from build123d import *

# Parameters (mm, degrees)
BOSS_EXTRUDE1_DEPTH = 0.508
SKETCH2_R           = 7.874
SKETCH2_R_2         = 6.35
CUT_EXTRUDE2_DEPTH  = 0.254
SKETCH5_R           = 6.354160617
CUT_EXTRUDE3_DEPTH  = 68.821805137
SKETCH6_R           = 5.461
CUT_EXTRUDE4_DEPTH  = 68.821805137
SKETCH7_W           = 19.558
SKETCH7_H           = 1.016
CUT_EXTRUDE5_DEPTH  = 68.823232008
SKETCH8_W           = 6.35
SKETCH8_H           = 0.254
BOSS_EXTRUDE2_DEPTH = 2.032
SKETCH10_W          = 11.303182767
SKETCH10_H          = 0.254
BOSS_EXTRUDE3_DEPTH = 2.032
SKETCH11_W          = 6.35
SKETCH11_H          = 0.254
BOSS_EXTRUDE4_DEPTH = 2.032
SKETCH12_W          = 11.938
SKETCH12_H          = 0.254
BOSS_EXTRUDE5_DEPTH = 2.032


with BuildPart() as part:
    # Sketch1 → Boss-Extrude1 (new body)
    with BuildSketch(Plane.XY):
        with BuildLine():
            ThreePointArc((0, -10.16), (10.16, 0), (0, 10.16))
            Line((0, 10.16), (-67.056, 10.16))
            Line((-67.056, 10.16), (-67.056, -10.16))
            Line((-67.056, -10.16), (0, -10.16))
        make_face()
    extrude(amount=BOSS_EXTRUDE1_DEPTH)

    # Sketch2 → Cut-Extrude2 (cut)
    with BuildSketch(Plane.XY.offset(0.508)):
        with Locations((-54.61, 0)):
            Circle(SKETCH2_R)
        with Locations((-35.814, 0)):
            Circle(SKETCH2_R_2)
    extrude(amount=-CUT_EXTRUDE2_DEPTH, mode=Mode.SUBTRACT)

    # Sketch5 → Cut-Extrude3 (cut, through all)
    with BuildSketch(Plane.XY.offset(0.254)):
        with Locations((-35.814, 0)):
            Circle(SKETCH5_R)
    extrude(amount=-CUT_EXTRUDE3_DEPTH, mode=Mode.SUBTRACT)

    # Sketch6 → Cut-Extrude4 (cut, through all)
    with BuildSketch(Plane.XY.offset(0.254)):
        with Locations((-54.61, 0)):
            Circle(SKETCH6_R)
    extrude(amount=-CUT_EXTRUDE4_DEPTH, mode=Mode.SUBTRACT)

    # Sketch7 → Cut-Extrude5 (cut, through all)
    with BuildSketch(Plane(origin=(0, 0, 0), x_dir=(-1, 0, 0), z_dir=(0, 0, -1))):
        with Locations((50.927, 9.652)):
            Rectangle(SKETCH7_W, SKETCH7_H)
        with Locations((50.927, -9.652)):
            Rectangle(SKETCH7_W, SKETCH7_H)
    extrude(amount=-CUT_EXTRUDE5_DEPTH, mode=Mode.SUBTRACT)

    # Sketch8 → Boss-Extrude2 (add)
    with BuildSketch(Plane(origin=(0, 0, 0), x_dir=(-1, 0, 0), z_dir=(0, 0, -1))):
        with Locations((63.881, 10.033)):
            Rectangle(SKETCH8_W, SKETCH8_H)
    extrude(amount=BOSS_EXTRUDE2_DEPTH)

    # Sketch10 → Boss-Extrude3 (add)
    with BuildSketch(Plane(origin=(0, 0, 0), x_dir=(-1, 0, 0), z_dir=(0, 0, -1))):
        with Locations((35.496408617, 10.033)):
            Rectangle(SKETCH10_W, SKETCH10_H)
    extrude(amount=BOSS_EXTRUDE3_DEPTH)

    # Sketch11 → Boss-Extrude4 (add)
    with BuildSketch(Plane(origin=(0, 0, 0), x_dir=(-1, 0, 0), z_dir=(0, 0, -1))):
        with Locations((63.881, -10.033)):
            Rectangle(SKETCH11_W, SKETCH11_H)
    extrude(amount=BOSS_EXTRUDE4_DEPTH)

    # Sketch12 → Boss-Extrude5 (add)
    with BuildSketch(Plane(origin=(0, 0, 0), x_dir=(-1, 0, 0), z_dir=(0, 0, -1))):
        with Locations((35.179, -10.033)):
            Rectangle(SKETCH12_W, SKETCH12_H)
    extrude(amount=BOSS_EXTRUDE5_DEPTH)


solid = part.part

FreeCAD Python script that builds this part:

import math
import FreeCAD as App
import Part
import Sketcher
from FreeCAD import Vector
Q = App.Units.Quantity


def add_polygon(sketch, points):
    """Adds a closed chain of lines whose ends are joined by coincident constraints."""
    first, n = sketch.GeometryCount, len(points)
    for a, b in zip(points, points[1:] + points[:1]):
        sketch.addGeometry(Part.LineSegment(App.Vector(*a, 0), App.Vector(*b, 0)), False)
    for i in range(n):
        sketch.addConstraint(Sketcher.Constraint("Coincident", first + i, 2, first + (i + 1) % n, 1))

doc = App.newDocument("Part")
params = doc.addObject("Spreadsheet::Sheet", "Params")
for row, (alias, value) in enumerate([
    ("sketch1_radius", "0.4 in"),
    ("sketch1_width", "2.64 in"),
    ("pad1_length", "0.02 in"),
    ("sketch2_diameter", "0.5 in"),
    ("sketch2_diameter2", "0.62 in"),
    ("pocket1_length", "0.01 in"),
    ("sketch4_diameter", "0.43 in"),
    ("sketch5_width", "0.77 in"),
    ("sketch5_height", "0.04 in"),
    ("sketch6_width", "0.25 in"),
    ("sketch6_height", "0.01 in"),
    ("pad2_length", "0.08 in"),
    ("sketch7_height", "0.01 in"),
    ("pad3_length", "0.08 in"),
    ("sketch8_width", "0.25 in"),
    ("sketch8_height", "0.01 in"),
    ("pad4_length", "0.08 in"),
    ("sketch9_width", "0.47 in"),
    ("sketch9_height", "0.01 in"),
    ("pad5_length", "0.08 in"),
], start=1):
    params.set(f"A{row}", alias)
    params.set(f"B{row}", "=" + value)
    params.setAlias(f"B{row}", alias)

body = doc.addObject("PartDesign::Body", "Body")

# Sketch on XY plane
sketch1 = doc.addObject("Sketcher::SketchObject", "Sketch")
body.addObject(sketch1)
sketch1.AttachmentSupport = (doc.XY_Plane, [""])
sketch1.MapMode = "FlatFace"
sketch1.addGeometry([
    Part.ArcOfCircle(Part.Circle(Vector(0, 0, 0), Vector(0, 0, 1), 10), math.radians(-90), math.radians(90)),
    Part.LineSegment(Vector(0, 10, 0), Vector(-67, 10, 0)),
    Part.LineSegment(Vector(-67, 10, 0), Vector(-67, -10, 0)),
    Part.LineSegment(Vector(-67, -10, 0), Vector(0, -10, 0)),
], False)
sketch1.addConstraint([
    Sketcher.Constraint("Tangent", 0, 2, 1, 1),
    Sketcher.Constraint("Coincident", 1, 2, 2, 1),
    Sketcher.Constraint("Coincident", 2, 2, 3, 1),
    Sketcher.Constraint("Tangent", 3, 2, 0, 1),
    Sketcher.Constraint("Horizontal", 1),
    Sketcher.Constraint("Vertical", 2),
    Sketcher.Constraint("Horizontal", 3),
    Sketcher.Constraint("Coincident", 0, 3, -1, 1),
    Sketcher.Constraint("Radius", 0, Q("0.4 in")),
    Sketcher.Constraint("DistanceX", 1, 2, 1, 1, Q("2.64 in")),
])
sketch1.setExpression("Constraints[8]", "Params.sketch1_radius")
sketch1.setExpression("Constraints[9]", "Params.sketch1_width")
pad1 = doc.addObject("PartDesign::Pad", "Pad")
body.addObject(pad1)
pad1.Profile = sketch1
pad1.setExpression("Length", "Params.pad1_length")

# Sketch on XY plane
sketch2 = doc.addObject("Sketcher::SketchObject", "Sketch001")
body.addObject(sketch2)
sketch2.AttachmentSupport = (doc.XY_Plane, [""])
sketch2.MapMode = "FlatFace"
sketch2.AttachmentOffset = App.Placement(Vector(0, 0, 0.02 * 25.4), App.Rotation())
sketch2.addGeometry([
    Part.Circle(Vector(-55, 0, 0), Vector(0, 0, 1), 8),
    Part.Circle(Vector(-36, 0, 0), Vector(0, 0, 1), 6),
], False)
sketch2.addConstraint([
    Sketcher.Constraint("PointOnObject", 0, 3, -1),
    Sketcher.Constraint("PointOnObject", 1, 3, -1),
    Sketcher.Constraint("Diameter", 1, Q("0.5 in")),
    Sketcher.Constraint("Diameter", 0, Q("0.62 in")),
    Sketcher.Constraint("DistanceX", 0, 3, -1, 1, Q("2.15 in")),
    Sketcher.Constraint("DistanceX", 1, 3, -1, 1, Q("1.41 in")),
])
sketch2.setExpression("Constraints[2]", "Params.sketch2_diameter")
sketch2.setExpression("Constraints[3]", "Params.sketch2_diameter2")
pocket1 = doc.addObject("PartDesign::Pocket", "Pocket")
body.addObject(pocket1)
pocket1.Profile = sketch2
pocket1.setExpression("Length", "Params.pocket1_length")

# Sketch on XY plane
sketch3 = doc.addObject("Sketcher::SketchObject", "Sketch002")
body.addObject(sketch3)
sketch3.AttachmentSupport = (doc.XY_Plane, [""])
sketch3.MapMode = "FlatFace"
sketch3.AttachmentOffset = App.Placement(Vector(0, 0, 0.01 * 25.4), App.Rotation())
sketch3.addGeometry(Part.Circle(Vector(-36, 0, 0), Vector(0, 0, 1), 6), False)
sketch3.addConstraint([
    Sketcher.Constraint("PointOnObject", 0, 3, -1),
    Sketcher.Constraint("DistanceX", 0, 3, -1, 1, Q("1.41 in")),
    Sketcher.Constraint("Diameter", 0, 12.708321),
])
pocket2 = doc.addObject("PartDesign::Pocket", "Pocket001")
body.addObject(pocket2)
pocket2.Profile = sketch3
pocket2.Type = "ThroughAll"

# Sketch on XY plane
sketch4 = doc.addObject("Sketcher::SketchObject", "Sketch003")
body.addObject(sketch4)
sketch4.AttachmentSupport = (doc.XY_Plane, [""])
sketch4.MapMode = "FlatFace"
sketch4.AttachmentOffset = App.Placement(Vector(0, 0, 0.01 * 25.4), App.Rotation())
sketch4.addGeometry(Part.Circle(Vector(-55, 0, 0), Vector(0, 0, 1), 5), False)
sketch4.addConstraint([
    Sketcher.Constraint("PointOnObject", 0, 3, -1),
    Sketcher.Constraint("Diameter", 0, Q("0.43 in")),
    Sketcher.Constraint("DistanceX", 0, 3, -1, 1, Q("2.15 in")),
])
sketch4.setExpression("Constraints[1]", "Params.sketch4_diameter")
pocket3 = doc.addObject("PartDesign::Pocket", "Pocket002")
body.addObject(pocket3)
pocket3.Profile = sketch4
pocket3.Type = "ThroughAll"

# Sketch on XY plane
sketch5 = doc.addObject("Sketcher::SketchObject", "Sketch004")
body.addObject(sketch5)
sketch5.AttachmentSupport = (doc.XY_Plane, [""])
sketch5.MapMode = "FlatFace"
add_polygon(sketch5, [(-41.1, 10.2), (-41.1, 9.1), (-60.7, 9.1), (-60.7, 10.2)])  # lines 0-3
add_polygon(sketch5, [(-41.1, -9.1), (-41.1, -10.2), (-60.7, -10.2), (-60.7, -9.1)])  # lines 4-7
sketch5.addConstraint([
    Sketcher.Constraint("Vertical", 0),
    Sketcher.Constraint("Horizontal", 1),
    Sketcher.Constraint("Vertical", 2),
    Sketcher.Constraint("Horizontal", 3),
    Sketcher.Constraint("Vertical", 4),
    Sketcher.Constraint("Horizontal", 5),
    Sketcher.Constraint("Vertical", 6),
    Sketcher.Constraint("Horizontal", 7),
    Sketcher.Constraint("Symmetric", 3, 2, 4, 2, -1),
    Sketcher.Constraint("Symmetric", 1, 2, 6, 2, -1),
    Sketcher.Constraint("DistanceX", 1, 2, 1, 1, Q("0.77 in")),
    Sketcher.Constraint("DistanceY", 0, 2, 0, 1, Q("0.04 in")),
    Sketcher.Constraint("DistanceY", -1, 1, 2, 2, Q("0.4 in")),
    Sketcher.Constraint("DistanceX", 0, 2, -1, 1, Q("1.62 in")),
])
sketch5.setExpression("Constraints[18]", "Params.sketch5_width")
sketch5.setExpression("Constraints[19]", "Params.sketch5_height")
pocket4 = doc.addObject("PartDesign::Pocket", "Pocket003")
body.addObject(pocket4)
pocket4.Profile = sketch5
pocket4.Type = "ThroughAll"
pocket4.Reversed = True

# Sketch on XY plane
sketch6 = doc.addObject("Sketcher::SketchObject", "Sketch005")
body.addObject(sketch6)
sketch6.AttachmentSupport = (doc.XY_Plane, [""])
sketch6.MapMode = "FlatFace"
add_polygon(sketch6, [(-60.71, 10.16), (-60.71, 9.91), (-67.06, 9.91), (-67.06, 10.16)])  # lines 0-3
sketch6.addConstraint([
    Sketcher.Constraint("Vertical", 0),
    Sketcher.Constraint("Horizontal", 1),
    Sketcher.Constraint("Vertical", 2),
    Sketcher.Constraint("Horizontal", 3),
    Sketcher.Constraint("DistanceX", 1, 2, 1, 1, Q("0.25 in")),
    Sketcher.Constraint("DistanceY", 0, 2, 0, 1, Q("0.01 in")),
    Sketcher.Constraint("DistanceY", -1, 1, 2, 2, Q("0.4 in")),
    Sketcher.Constraint("DistanceX", 0, 2, -1, 1, Q("2.39 in")),
])
sketch6.setExpression("Constraints[8]", "Params.sketch6_width")
sketch6.setExpression("Constraints[9]", "Params.sketch6_height")
pad2 = doc.addObject("PartDesign::Pad", "Pad001")
body.addObject(pad2)
pad2.Profile = sketch6
pad2.setExpression("Length", "Params.pad2_length")
pad2.Reversed = True

# Sketch on XY plane
sketch7 = doc.addObject("Sketcher::SketchObject", "Sketch006")
body.addObject(sketch7)
sketch7.AttachmentSupport = (doc.XY_Plane, [""])
sketch7.MapMode = "FlatFace"
add_polygon(sketch7, [(-29.84, 10.16), (-29.84, 9.91), (-41.15, 9.91), (-41.15, 10.16)])  # lines 0-3
sketch7.addConstraint([
    Sketcher.Constraint("Vertical", 0),
    Sketcher.Constraint("Horizontal", 1),
    Sketcher.Constraint("Vertical", 2),
    Sketcher.Constraint("Horizontal", 3),
    Sketcher.Constraint("DistanceY", 0, 2, 0, 1, Q("0.01 in")),
    Sketcher.Constraint("DistanceY", -1, 1, 2, 2, Q("0.4 in")),
    Sketcher.Constraint("DistanceX", 1, 2, -1, 1, Q("1.62 in")),
    Sketcher.Constraint("DistanceX", 1, 2, 1, 1, 11.303183),
])
sketch7.setExpression("Constraints[8]", "Params.sketch7_height")
pad3 = doc.addObject("PartDesign::Pad", "Pad002")
body.addObject(pad3)
pad3.Profile = sketch7
pad3.setExpression("Length", "Params.pad3_length")
pad3.Reversed = True

# Sketch on XY plane
sketch8 = doc.addObject("Sketcher::SketchObject", "Sketch007")
body.addObject(sketch8)
sketch8.AttachmentSupport = (doc.XY_Plane, [""])
sketch8.MapMode = "FlatFace"
add_polygon(sketch8, [(-60.71, -9.91), (-60.71, -10.16), (-67.06, -10.16), (-67.06, -9.91)])  # lines 0-3
sketch8.addConstraint([
    Sketcher.Constraint("Vertical", 0),
    Sketcher.Constraint("Horizontal", 1),
    Sketcher.Constraint("Vertical", 2),
    Sketcher.Constraint("Horizontal", 3),
    Sketcher.Constraint("DistanceX", 1, 2, 1, 1, Q("0.25 in")),
    Sketcher.Constraint("DistanceY", 0, 2, 0, 1, Q("0.01 in")),
    Sketcher.Constraint("DistanceY", 0, 2, -1, 1, Q("0.4 in")),
    Sketcher.Constraint("DistanceX", 0, 2, -1, 1, Q("2.39 in")),
])
sketch8.setExpression("Constraints[8]", "Params.sketch8_width")
sketch8.setExpression("Constraints[9]", "Params.sketch8_height")
pad4 = doc.addObject("PartDesign::Pad", "Pad003")
body.addObject(pad4)
pad4.Profile = sketch8
pad4.setExpression("Length", "Params.pad4_length")
pad4.Reversed = True

# Sketch on XY plane
sketch9 = doc.addObject("Sketcher::SketchObject", "Sketch008")
body.addObject(sketch9)
sketch9.AttachmentSupport = (doc.XY_Plane, [""])
sketch9.MapMode = "FlatFace"
add_polygon(sketch9, [(-29.21, -9.91), (-29.21, -10.16), (-41.15, -10.16), (-41.15, -9.91)])  # lines 0-3
sketch9.addConstraint([
    Sketcher.Constraint("Vertical", 0),
    Sketcher.Constraint("Horizontal", 1),
    Sketcher.Constraint("Vertical", 2),
    Sketcher.Constraint("Horizontal", 3),
    Sketcher.Constraint("DistanceX", 1, 2, 1, 1, Q("0.47 in")),
    Sketcher.Constraint("DistanceY", 0, 2, 0, 1, Q("0.01 in")),
    Sketcher.Constraint("DistanceY", 0, 2, -1, 1, Q("0.4 in")),
    Sketcher.Constraint("DistanceX", 0, 2, -1, 1, Q("1.15 in")),
])
sketch9.setExpression("Constraints[8]", "Params.sketch9_width")
sketch9.setExpression("Constraints[9]", "Params.sketch9_height")
pad5 = doc.addObject("PartDesign::Pad", "Pad004")
body.addObject(pad5)
pad5.Profile = sketch9
pad5.setExpression("Length", "Params.pad5_length")
pad5.Reversed = True

doc.recompute()
